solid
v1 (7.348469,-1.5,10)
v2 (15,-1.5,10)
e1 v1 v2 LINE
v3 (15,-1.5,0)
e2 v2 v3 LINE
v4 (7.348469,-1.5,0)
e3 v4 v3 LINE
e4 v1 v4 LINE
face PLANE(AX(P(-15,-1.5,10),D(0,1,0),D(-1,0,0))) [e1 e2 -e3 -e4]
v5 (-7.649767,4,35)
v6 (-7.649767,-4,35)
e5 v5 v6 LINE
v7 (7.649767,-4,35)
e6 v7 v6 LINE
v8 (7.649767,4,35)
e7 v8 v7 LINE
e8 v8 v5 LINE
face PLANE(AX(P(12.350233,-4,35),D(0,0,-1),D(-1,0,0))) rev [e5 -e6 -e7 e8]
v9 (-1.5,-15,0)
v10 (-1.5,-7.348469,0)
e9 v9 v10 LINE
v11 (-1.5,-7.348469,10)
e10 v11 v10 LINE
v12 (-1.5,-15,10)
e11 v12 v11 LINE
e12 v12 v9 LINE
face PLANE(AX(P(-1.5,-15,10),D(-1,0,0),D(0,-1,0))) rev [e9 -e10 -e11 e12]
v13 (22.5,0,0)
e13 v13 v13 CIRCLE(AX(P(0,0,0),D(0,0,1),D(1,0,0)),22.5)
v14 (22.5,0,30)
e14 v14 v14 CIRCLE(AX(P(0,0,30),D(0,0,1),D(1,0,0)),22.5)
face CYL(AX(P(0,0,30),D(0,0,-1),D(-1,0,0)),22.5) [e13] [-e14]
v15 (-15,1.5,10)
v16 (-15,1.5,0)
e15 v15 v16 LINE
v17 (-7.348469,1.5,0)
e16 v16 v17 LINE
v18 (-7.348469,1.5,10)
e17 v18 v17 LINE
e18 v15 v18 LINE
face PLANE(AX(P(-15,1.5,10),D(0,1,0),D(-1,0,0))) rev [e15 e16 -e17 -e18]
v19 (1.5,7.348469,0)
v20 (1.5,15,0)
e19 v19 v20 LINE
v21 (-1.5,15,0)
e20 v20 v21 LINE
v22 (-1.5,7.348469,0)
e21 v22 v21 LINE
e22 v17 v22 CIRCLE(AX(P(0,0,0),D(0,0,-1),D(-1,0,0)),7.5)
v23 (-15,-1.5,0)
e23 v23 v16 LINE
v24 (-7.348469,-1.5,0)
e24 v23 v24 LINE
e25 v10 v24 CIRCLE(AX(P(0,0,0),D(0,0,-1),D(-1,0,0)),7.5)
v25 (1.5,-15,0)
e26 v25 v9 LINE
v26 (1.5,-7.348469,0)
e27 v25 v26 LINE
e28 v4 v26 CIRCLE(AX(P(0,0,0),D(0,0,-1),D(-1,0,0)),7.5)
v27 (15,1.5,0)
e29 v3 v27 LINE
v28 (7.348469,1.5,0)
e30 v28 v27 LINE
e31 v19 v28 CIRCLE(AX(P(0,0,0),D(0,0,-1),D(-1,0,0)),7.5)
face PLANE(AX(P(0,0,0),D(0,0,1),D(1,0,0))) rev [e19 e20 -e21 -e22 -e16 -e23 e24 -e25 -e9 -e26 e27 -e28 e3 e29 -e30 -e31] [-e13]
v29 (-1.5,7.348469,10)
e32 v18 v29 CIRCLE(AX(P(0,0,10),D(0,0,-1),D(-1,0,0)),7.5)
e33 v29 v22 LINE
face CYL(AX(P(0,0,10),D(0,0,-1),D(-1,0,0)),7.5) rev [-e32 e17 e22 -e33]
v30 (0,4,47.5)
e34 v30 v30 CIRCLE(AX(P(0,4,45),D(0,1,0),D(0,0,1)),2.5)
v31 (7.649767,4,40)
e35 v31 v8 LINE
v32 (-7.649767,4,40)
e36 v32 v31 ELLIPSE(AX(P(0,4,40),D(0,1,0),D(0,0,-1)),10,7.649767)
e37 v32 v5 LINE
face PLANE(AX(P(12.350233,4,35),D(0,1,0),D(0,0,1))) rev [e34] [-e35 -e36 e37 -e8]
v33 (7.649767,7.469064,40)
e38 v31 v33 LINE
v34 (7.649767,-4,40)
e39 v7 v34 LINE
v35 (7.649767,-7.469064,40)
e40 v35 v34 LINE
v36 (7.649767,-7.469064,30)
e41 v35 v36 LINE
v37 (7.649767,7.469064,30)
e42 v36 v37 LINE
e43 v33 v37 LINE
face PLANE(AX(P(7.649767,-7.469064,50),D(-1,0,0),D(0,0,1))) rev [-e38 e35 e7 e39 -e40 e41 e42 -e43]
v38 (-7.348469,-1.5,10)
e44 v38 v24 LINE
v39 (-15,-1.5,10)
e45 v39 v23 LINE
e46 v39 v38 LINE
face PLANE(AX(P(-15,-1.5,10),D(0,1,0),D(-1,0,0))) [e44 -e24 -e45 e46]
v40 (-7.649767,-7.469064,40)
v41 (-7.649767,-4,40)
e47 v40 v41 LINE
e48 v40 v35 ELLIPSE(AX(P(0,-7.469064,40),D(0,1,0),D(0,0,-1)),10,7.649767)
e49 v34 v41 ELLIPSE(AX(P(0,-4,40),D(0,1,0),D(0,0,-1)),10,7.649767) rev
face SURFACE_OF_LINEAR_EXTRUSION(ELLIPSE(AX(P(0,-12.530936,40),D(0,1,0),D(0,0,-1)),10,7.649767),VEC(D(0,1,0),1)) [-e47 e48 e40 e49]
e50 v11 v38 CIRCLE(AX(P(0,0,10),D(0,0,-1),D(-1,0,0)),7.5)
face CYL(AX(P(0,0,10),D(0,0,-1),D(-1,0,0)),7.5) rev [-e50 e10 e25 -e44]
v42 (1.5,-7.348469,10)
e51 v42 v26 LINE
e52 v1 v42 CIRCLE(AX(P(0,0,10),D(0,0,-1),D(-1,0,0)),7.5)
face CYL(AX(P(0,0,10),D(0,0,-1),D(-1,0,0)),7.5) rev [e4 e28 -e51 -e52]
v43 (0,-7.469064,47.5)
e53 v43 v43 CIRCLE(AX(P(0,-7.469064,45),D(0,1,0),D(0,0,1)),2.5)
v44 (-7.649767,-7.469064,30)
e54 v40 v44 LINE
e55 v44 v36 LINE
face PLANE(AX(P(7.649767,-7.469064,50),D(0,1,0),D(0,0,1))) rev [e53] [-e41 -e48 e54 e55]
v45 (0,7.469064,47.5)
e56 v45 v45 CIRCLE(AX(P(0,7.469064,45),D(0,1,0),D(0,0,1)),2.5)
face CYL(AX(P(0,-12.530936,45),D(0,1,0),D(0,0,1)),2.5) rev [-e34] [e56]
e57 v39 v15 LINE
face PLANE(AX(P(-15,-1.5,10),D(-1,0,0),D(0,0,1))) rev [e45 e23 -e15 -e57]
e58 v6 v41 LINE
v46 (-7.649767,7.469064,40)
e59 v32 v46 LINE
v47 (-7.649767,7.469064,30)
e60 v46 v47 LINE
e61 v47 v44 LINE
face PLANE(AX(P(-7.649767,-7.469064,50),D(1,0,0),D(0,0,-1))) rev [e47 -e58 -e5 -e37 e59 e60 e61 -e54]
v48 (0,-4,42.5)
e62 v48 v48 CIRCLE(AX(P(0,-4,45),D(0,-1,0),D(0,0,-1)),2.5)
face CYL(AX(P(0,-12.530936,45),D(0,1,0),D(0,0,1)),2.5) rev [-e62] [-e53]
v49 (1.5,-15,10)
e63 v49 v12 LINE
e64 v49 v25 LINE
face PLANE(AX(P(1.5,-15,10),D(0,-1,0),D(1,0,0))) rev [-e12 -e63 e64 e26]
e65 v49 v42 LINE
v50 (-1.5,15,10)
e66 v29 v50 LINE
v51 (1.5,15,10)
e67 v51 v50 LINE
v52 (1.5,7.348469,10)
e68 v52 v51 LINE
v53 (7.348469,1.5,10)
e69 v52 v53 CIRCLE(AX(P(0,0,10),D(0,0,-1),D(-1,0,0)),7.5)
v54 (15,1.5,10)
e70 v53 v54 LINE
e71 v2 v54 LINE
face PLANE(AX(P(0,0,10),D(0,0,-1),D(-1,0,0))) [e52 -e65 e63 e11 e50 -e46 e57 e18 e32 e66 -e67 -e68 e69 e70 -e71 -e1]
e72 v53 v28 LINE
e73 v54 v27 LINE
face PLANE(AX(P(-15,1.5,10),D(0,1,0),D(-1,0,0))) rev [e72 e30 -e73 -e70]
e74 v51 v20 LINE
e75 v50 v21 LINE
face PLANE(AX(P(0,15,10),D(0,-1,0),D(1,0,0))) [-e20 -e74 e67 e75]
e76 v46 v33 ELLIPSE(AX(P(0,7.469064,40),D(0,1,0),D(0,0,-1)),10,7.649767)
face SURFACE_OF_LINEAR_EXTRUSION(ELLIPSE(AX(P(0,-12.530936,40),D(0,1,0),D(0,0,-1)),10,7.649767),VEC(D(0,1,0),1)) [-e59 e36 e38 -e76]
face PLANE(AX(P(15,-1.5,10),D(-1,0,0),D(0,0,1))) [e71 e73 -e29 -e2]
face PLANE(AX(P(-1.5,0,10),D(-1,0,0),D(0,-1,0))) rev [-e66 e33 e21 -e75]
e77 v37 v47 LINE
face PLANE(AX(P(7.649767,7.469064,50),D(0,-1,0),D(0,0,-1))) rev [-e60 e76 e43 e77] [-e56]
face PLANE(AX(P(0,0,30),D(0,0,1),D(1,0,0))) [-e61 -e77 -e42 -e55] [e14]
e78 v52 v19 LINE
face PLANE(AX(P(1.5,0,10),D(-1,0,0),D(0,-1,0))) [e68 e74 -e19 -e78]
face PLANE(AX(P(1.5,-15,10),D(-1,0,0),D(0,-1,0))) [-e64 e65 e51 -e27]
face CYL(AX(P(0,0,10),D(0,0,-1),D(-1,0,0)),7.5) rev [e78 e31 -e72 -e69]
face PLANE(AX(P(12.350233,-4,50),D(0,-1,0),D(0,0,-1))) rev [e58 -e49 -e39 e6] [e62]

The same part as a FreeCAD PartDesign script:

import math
import FreeCAD as App
import Part
import Sketcher

V = App.Vector

doc = App.newDocument("Part")
params = doc.addObject("Spreadsheet::Sheet", "Params")
for row, (alias, value) in enumerate([
    ("sketch1_diameter", "45 mm"),
    ("pad1_length", "30 mm"),
    ("sketch2_radius", "7.5 mm"),
    ("sketch2_width", "3 mm"),
    ("pocket1_length", "10 mm"),
    ("pad2_length", "20 mm"),
    ("sketch4_width", "8 mm"),
    ("sketch4_height", "15 mm"),
    ("pocket2_length", "20 mm"),
    ("sketch5_diameter", "5 mm"),
    ("pocket3_length", "20 mm"),
], start=1):
    params.set(f"A{row}", alias)
    params.set(f"B{row}", "=" + value)
    params.setAlias(f"B{row}", alias)

body = doc.addObject("PartDesign::Body", "Body")

sketch1 = body.newObject("Sketcher::SketchObject", "Sketch")
sketch1.AttachmentSupport = (doc.getObject("XY_Plane"), [""])
sketch1.MapMode = "FlatFace"
sketch1.addGeometry(Part.Circle(V(0, 0, 0), V(0, 0, 1), 22), False)
sketch1.addConstraint([
    Sketcher.Constraint("Coincident", 0, 3, -1, 1),
    Sketcher.Constraint("Diameter", 0, 45.0),
])
sketch1.setExpression("Constraints[1]", "Params.sketch1_diameter")
pad1 = body.newObject("PartDesign::Pad", "Pad")
pad1.Profile = sketch1
pad1.setExpression("Length", "Params.pad1_length")

sketch2 = body.newObject("Sketcher::SketchObject", "Sketch001")
sketch2.AttachmentSupport = (doc.getObject("XY_Plane"), [""])
sketch2.MapMode = "FlatFace"
sketch2.addGeometry([
    Part.LineSegment(V(-1.5, -15, 0), V(-1.5, -7.3, 0)),
    Part.ArcOfCircle(Part.Circle(V(0, 0, 0), V(0, 0, 1), 7.5), math.radians(-168), math.radians(-102)),
    Part.LineSegment(V(-7.3, -1.5, 0), V(-15, -1.5, 0)),
    Part.LineSegment(V(-15, -1.5, 0), V(-15, 1.5, 0)),
    Part.LineSegment(V(-15, 1.5, 0), V(-7.3, 1.5, 0)),
    Part.ArcOfCircle(Part.Circle(V(0, 0, 0), V(0, 0, 1), 7.5), math.radians(102), math.radians(168)),
    Part.LineSegment(V(-1.5, 7.3, 0), V(-1.5, 15, 0)),
    Part.LineSegment(V(-1.5, 15, 0), V(1.5, 15, 0)),
    Part.LineSegment(V(1.5, 15, 0), V(1.5, 7.3, 0)),
    Part.ArcOfCircle(Part.Circle(V(0, 0, 0), V(0, 0, 1), 7.5), math.radians(12), math.radians(78)),
    Part.LineSegment(V(7.3, 1.5, 0), V(15, 1.5, 0)),
    Part.LineSegment(V(15, 1.5, 0), V(15, -1.5, 0)),
    Part.LineSegment(V(15, -1.5, 0), V(7.3, -1.5, 0)),
    Part.ArcOfCircle(Part.Circle(V(0, 0, 0), V(0, 0, 1), 7.5), math.radians(-78), math.radians(-12)),
    Part.LineSegment(V(1.5, -7.3, 0), V(1.5, -15, 0)),
    Part.LineSegment(V(1.5, -15, 0), V(-1.5, -15, 0)),
], False)
sketch2.addConstraint([
    Sketcher.Constraint("Coincident", 0, 2, 1, 2),
    Sketcher.Constraint("Coincident", 1, 1, 2, 1),
    Sketcher.Constraint("Coincident", 2, 2, 3, 1),
    Sketcher.Constraint("Coincident", 3, 2, 4, 1),
    Sketcher.Constraint("Coincident", 4, 2, 5, 2),
    Sketcher.Constraint("Coincident", 5, 1, 6, 1),
    Sketcher.Constraint("Coincident", 6, 2, 7, 1),
    Sketcher.Constraint("Coincident", 7, 2, 8, 1),
    Sketcher.Constraint("Coincident", 8, 2, 9, 2),
    Sketcher.Constraint("Coincident", 9, 1, 10, 1),
    Sketcher.Constraint("Coincident", 10, 2, 11, 1),
    Sketcher.Constraint("Coincident", 11, 2, 12, 1),
    Sketcher.Constraint("Coincident", 12, 2, 13, 2),
    Sketcher.Constraint("Coincident", 13, 1, 14, 1),
    Sketcher.Constraint("Coincident", 14, 2, 15, 1),
    Sketcher.Constraint("Coincident", 15, 2, 0, 1),
    Sketcher.Constraint("Vertical", 0),
    Sketcher.Constraint("Horizontal", 2),
    Sketcher.Constraint("Vertical", 3),
    Sketcher.Constraint("Horizontal", 4),
    Sketcher.Constraint("Vertical", 6),
    Sketcher.Constraint("Horizontal", 7),
    Sketcher.Constraint("Vertical", 8),
    Sketcher.Constraint("Horizontal", 10),
    Sketcher.Constraint("Vertical", 11),
    Sketcher.Constraint("Horizontal", 12),
    Sketcher.Constraint("Vertical", 14),
    Sketcher.Constraint("Horizontal", 15),
    Sketcher.Constraint("Coincident", 1, 3, -1, 1),
    Sketcher.Constraint("Coincident", 5, 3, -1, 1),
    Sketcher.Constraint("Coincident", 9, 3, -1, 1),
    Sketcher.Constraint("Coincident", 13, 3, -1, 1),
    Sketcher.Constraint("Equal", 1, 5),
    Sketcher.Constraint("Equal", 5, 9),
    Sketcher.Constraint("Equal", 9, 13),
    Sketcher.Constraint("Symmetric", 2, 2, 10, 2, -1, 1),
    Sketcher.Constraint("Symmetric", 6, 2, 14, 2, -1, 1),
    Sketcher.Constraint("Horizontal", 5, 1, 8, 2),
    Sketcher.Constraint("Horizontal", 4, 2, 9, 1),
    Sketcher.Constraint("Horizontal", 2, 2, 11, 2),
    Sketcher.Constraint("Horizontal", 0, 2, 13, 1),
    Sketcher.Constraint("Equal", 12, 0),
    Sketcher.Constraint("Equal", 15, 3),
    Sketcher.Constraint("Radius", 1, 7.5),
    Sketcher.Constraint("DistanceX", 7, 1, 7, 2, 3.0),
    Sketcher.Constraint("DistanceX", 2, 2, -1, 1, 15.0),
])
sketch2.setExpression("Constraints[43]", "Params.sketch2_radius")
sketch2.setExpression("Constraints[44]", "Params.sketch2_width")
pocket1 = body.newObject("PartDesign::Pocket", "Pocket")
pocket1.Profile = sketch2
pocket1.setExpression("Length", "Params.pocket1_length")
pocket1.Reversed = True

sketch3 = body.newObject("Sketcher::SketchObject", "Sketch002")
sketch3.AttachmentSupport = (doc.getObject("XY_Plane"), [""])
sketch3.MapMode = "FlatFace"
sketch3.AttachmentOffset = App.Placement(V(0, 0, 30), App.Rotation())
sketch3.addGeometry([
    Part.LineSegment(V(-8, 7, 0), V(-8, -7, 0)),
    Part.LineSegment(V(-8, -7, 0), V(8, -7, 0)),
    Part.LineSegment(V(8, -7, 0), V(8, 7, 0)),
    Part.LineSegment(V(8, 7, 0), V(-8, 7, 0)),
], False)
sketch3.addConstraint([
    Sketcher.Constraint("Coincident", 0, 2, 1, 1),
    Sketcher.Constraint("Coincident", 1, 2, 2, 1),
    Sketcher.Constraint("Coincident", 2, 2, 3, 1),
    Sketcher.Constraint("Coincident", 3, 2, 0, 1),
    Sketcher.Constraint("Vertical", 0),
    Sketcher.Constraint("Horizontal", 1),
    Sketcher.Constraint("Vertical", 2),
    Sketcher.Constraint("Horizontal", 3),
    Sketcher.Constraint("Symmetric", 0, 2, 2, 2, -1, 1),
    Sketcher.Constraint("DistanceX", 1, 1, 1, 2, 15.299534),
    Sketcher.Constraint("DistanceY", 0, 2, 0, 1, 14.938128),
])
pad2 = body.newObject("PartDesign::Pad", "Pad001")
pad2.Profile = sketch3
pad2.setExpression("Length", "Params.pad2_length")

sketch4 = body.newObject("Sketcher::SketchObject", "Sketch003")
sketch4.AttachmentSupport = (doc.getObject("YZ_Plane"), [""])
sketch4.MapMode = "FlatFace"
sketch4.AttachmentOffset = App.Placement(V(0, 0, -7.649767), App.Rotation())
sketch4.addGeometry([
    Part.LineSegment(V(4, 50, 0), V(4, 35, 0)),
    Part.LineSegment(V(4, 35, 0), V(-4, 35, 0)),
    Part.LineSegment(V(-4, 35, 0), V(-4, 50, 0)),
    Part.LineSegment(V(-4, 50, 0), V(4, 50, 0)),
], False)
sketch4.addConstraint([
    Sketcher.Constraint("Coincident", 0, 2, 1, 1),
    Sketcher.Constraint("Coincident", 1, 2, 2, 1),
    Sketcher.Constraint("Coincident", 2, 2, 3, 1),
    Sketcher.Constraint("Coincident", 3, 2, 0, 1),
    Sketcher.Constraint("Vertical", 0),
    Sketcher.Constraint("Horizontal", 1),
    Sketcher.Constraint("Vertical", 2),
    Sketcher.Constraint("Horizontal", 3),
    Sketcher.Constraint("DistanceX", 1, 2, 1, 1, 8.0),
    Sketcher.Constraint("DistanceY", 0, 2, 0, 1, 15.0),
    Sketcher.Constraint("DistanceX", -1, 1, 0, 2, 4.0),
    Sketcher.Constraint("DistanceY", -1, 1, 0, 2, 35.0),
])
sketch4.setExpression("Constraints[8]", "Params.sketch4_width")
sketch4.setExpression("Constraints[9]", "Params.sketch4_height")
pocket2 = body.newObject("PartDesign::Pocket", "Pocket001")
pocket2.Profile = sketch4
pocket2.setExpression("Length", "Params.pocket2_length")
pocket2.Reversed = True

sketch5 = body.newObject("Sketcher::SketchObject", "Sketch004")
sketch5.AttachmentSupport = (doc.getObject("XZ_Plane"), [""])
sketch5.MapMode = "FlatFace"
sketch5.AttachmentOffset = App.Placement(V(0, 0, -7.469064), App.Rotation())
sketch5.addGeometry([
    Part.Circle(V(0, 45, 0), V(0, 0, 1), 2.5),
    Part.LineSegment(V(7.649767, 50, 0), V(7.649767, 40, 0)),
    Part.BSplineCurve([V(0, 50, 0), V(7.649767, 50, 0), V(7.649767, 40, 0)], [3, 3], [3.141592654, 4.71238898], False, 2, [1, 0.707106781, 1], False),
    Part.LineSegment(V(0, 50, 0), V(7.649767, 50, 0)),
    Part.LineSegment(V(-7.649767, 50, 0), V(0, 50, 0)),
    Part.BSplineCurve([V(-7.649767, 40, 0), V(-7.649767, 50, 0), V(0, 50, 0)], [3, 3], [1.570796327, 3.141592654], False, 2, [1, 0.707106781, 1], False),
    Part.LineSegment(V(-7.649767, 40, 0), V(-7.649767, 50, 0)),
], False)
sketch5.addConstraint([
    Sketcher.Constraint("Block", 2),
    Sketcher.Constraint("Block", 5),
    Sketcher.Constraint("Coincident", 1, 2, 2, 2),
    Sketcher.Constraint("Coincident", 2, 1, 3, 1),
    Sketcher.Constraint("Coincident", 3, 2, 1, 1),
    Sketcher.Constraint("Coincident", 4, 2, 5, 2),
    Sketcher.Constraint("Coincident", 5, 1, 6, 1),
    Sketcher.Constraint("Coincident", 6, 2, 4, 1),
    Sketcher.Constraint("Vertical", 1),
    Sketcher.Constraint("Horizontal", 3),
    Sketcher.Constraint("Horizontal", 4),
    Sketcher.Constraint("Vertical", 6),
    Sketcher.Constraint("PointOnObject", 0, 3, -2),
    Sketcher.Constraint("Diameter", 0, 5.0),
    Sketcher.Constraint("DistanceY", -1, 1, 0, 3, 45.0),
])
sketch5.setExpression("Constraints[13]", "Params.sketch5_diameter")
pocket3 = body.newObject("PartDesign::Pocket", "Pocket002")
pocket3.Profile = sketch5
pocket3.setExpression("Length", "Params.pocket3_length")
pocket3.Reversed = True

doc.recompute()
